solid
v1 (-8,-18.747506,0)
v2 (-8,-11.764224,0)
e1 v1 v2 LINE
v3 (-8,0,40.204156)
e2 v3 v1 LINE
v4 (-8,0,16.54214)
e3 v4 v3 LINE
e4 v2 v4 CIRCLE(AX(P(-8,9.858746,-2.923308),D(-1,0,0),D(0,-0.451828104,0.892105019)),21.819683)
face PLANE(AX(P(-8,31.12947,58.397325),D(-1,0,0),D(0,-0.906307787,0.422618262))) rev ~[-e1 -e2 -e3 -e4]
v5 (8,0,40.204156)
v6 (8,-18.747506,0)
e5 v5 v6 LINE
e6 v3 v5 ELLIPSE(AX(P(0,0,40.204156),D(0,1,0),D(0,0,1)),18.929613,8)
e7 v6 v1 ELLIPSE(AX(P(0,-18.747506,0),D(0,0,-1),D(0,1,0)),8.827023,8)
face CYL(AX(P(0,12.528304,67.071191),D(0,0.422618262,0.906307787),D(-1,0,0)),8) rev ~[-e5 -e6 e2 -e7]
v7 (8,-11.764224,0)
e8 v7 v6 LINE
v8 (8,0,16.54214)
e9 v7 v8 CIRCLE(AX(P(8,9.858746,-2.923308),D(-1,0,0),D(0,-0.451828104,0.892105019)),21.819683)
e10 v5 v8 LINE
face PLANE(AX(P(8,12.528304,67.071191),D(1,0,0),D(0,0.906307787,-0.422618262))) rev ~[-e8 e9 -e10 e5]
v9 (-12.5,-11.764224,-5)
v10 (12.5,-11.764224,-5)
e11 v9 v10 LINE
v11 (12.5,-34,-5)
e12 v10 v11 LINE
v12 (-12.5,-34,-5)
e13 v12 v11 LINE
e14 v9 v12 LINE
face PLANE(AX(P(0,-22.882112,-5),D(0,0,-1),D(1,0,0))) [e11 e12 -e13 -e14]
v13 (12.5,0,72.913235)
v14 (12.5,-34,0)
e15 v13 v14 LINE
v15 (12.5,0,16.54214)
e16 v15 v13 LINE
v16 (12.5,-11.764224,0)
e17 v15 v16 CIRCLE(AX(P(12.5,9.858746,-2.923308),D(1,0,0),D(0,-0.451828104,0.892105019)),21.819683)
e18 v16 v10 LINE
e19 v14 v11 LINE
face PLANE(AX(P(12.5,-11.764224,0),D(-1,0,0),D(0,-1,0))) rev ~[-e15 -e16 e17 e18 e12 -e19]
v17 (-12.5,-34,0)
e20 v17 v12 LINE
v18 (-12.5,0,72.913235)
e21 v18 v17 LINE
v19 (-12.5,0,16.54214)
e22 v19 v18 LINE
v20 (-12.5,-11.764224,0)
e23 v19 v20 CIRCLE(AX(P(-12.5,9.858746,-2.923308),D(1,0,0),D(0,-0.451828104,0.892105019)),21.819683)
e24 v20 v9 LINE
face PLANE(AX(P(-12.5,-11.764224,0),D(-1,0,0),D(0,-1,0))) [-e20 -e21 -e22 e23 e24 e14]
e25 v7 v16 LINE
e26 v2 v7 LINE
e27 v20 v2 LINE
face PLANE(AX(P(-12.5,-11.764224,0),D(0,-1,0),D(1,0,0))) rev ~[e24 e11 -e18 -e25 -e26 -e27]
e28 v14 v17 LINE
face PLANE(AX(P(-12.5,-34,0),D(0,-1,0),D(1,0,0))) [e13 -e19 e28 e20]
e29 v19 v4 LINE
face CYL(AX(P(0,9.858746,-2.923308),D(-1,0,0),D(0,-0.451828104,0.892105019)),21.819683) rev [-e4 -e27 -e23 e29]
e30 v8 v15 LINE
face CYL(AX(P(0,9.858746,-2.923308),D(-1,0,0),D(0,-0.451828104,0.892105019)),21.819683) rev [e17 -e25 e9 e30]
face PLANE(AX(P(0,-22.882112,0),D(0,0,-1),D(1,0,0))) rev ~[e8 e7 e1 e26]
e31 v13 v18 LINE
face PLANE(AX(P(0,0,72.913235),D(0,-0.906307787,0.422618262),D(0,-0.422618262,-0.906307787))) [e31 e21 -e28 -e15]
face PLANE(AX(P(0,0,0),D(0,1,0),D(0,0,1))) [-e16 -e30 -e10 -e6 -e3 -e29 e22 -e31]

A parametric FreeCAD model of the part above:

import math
import FreeCAD as App
import Part
import Sketcher
Q = App.Units.Quantity

doc = App.newDocument("Part")
body = doc.addObject("PartDesign::Body", "Body")

sketch1 = doc.addObject("Sketcher::SketchObject", "Sketch")
body.addObject(sketch1)
sketch1.AttachmentSupport = (doc.YZ_Plane, [""])
sketch1.MapMode = "FlatFace"
sketch1.addGeometry([
    Part.LineSegment(App.Vector(-34, 0, 0), App.Vector(0, 0, 0)),
    Part.LineSegment(App.Vector(0, 0, 0), App.Vector(0, 73, 0)),
    Part.LineSegment(App.Vector(0, 73, 0), App.Vector(-34, 0, 0)),
], False)
sketch1.addConstraint([
    Sketcher.Constraint("Coincident", 0, 2, 1, 1),
    Sketcher.Constraint("Coincident", 1, 2, 2, 1),
    Sketcher.Constraint("Coincident", 2, 2, 0, 1),
    Sketcher.Constraint("Horizontal", 0),
    Sketcher.Constraint("Vertical", 1),
    Sketcher.Constraint("Coincident", 0, 2, -1, 1),
    Sketcher.Constraint("DistanceX", 0, 1, 0, 2, Q("34 mm")),
    Sketcher.Constraint("Angle", 2, Q("-115 deg")),
])
pad1 = doc.addObject("PartDesign::Pad", "Pad")
body.addObject(pad1)
pad1.Profile = sketch1
pad1.Length = 25
pad1.Midplane = True

sketch2 = doc.addObject("Sketcher::SketchObject", "Sketch001")
body.addObject(sketch2)
sketch2.AttachmentSupport = (doc.YZ_Plane, [""])
sketch2.MapMode = "FlatFace"
sketch2.addGeometry([
    Part.ArcOfCircle(Part.Circle(App.Vector(10, -3, 0), App.Vector(0, 0, 1), 22), math.radians(117), math.radians(172)),
    Part.LineSegment(App.Vector(-12, 0, 0), App.Vector(0, 0, 0)),
    Part.LineSegment(App.Vector(0, 0, 0), App.Vector(0, 17, 0)),
], False)
sketch2.addConstraint([
    Sketcher.Constraint("Coincident", 0, 2, 1, 1),
    Sketcher.Constraint("Coincident", 1, 2, 2, 1),
    Sketcher.Constraint("Coincident", 2, 2, 0, 1),
    Sketcher.Constraint("Horizontal", 1),
    Sketcher.Constraint("Vertical", 2),
    Sketcher.Constraint("Coincident", 1, 2, -1, 1),
    Sketcher.Constraint("Radius", 0, Q("21.819683 mm")),
    Sketcher.Constraint("DistanceY", 2, 1, 2, 2, Q("16.54214 mm")),
    Sketcher.Constraint("DistanceX", 1, 1, 1, 2, Q("11.764224 mm")),
])
pocket1 = doc.addObject("PartDesign::Pocket", "Pocket")
body.addObject(pocket1)
pocket1.Profile = sketch2
pocket1.Type = "ThroughAll"
pocket1.Midplane = True

sketch3 = doc.addObject("Sketcher::SketchObject", "Sketch002")
body.addObject(sketch3)
sketch3.Placement = App.Placement(App.Vector(0, 27.927389, 59.89048), App.Rotation(App.Vector(1, 0, 0), App.Vector(0, 0.906307787, -0.422618262), App.Vector(0, 0.422618262, 0.906307787), "ZXY"))
sketch3.addGeometry([
    Part.LineSegment(App.Vector(-8, 4, 0), App.Vector(-8, -17, 0)),
    Part.ArcOfCircle(Part.Circle(App.Vector(0, -17, 0), App.Vector(0, 0, 1), 8), math.radians(180), math.radians(360)),
    Part.LineSegment(App.Vector(8, -17, 0), App.Vector(8, 4, 0)),
    Part.LineSegment(App.Vector(8, 4, 0), App.Vector(-8, 4, 0)),
], False)
sketch3.addConstraint([
    Sketcher.Constraint("Tangent", 0, 2, 1, 1),
    Sketcher.Constraint("Tangent", 1, 2, 2, 1),
    Sketcher.Constraint("Coincident", 2, 2, 3, 1),
    Sketcher.Constraint("Coincident", 3, 2, 0, 1),
    Sketcher.Constraint("Vertical", 0),
    Sketcher.Constraint("Vertical", 2),
    Sketcher.Constraint("Horizontal", 3),
    Sketcher.Constraint("PointOnObject", 1, 3, -2),
    Sketcher.Constraint("Radius", 1, Q("8 mm")),
    Sketcher.Constraint("DistanceY", 0, 2, 0, 1, Q("20.524116 mm")),
    Sketcher.Constraint("DistanceY", 1, 3, -1, 1, Q("16.99101 mm")),
])
pocket2 = doc.addObject("PartDesign::Pocket", "Pocket001")
body.addObject(pocket2)
pocket2.Profile = sketch3
pocket2.Length = 78.735332

sketch4 = doc.addObject("Sketcher::SketchObject", "Sketch003")
body.addObject(sketch4)
sketch4.AttachmentSupport = (doc.XY_Plane, [""])
sketch4.MapMode = "FlatFace"
sketch4.addGeometry([
    Part.LineSegment(App.Vector(-12, -34, 0), App.Vector(-12, -12, 0)),
    Part.LineSegment(App.Vector(-12, -12, 0), App.Vector(12, -12, 0)),
    Part.LineSegment(App.Vector(12, -12, 0), App.Vector(12, -34, 0)),
    Part.LineSegment(App.Vector(12, -34, 0), App.Vector(-12, -34, 0)),
], False)
sketch4.addConstraint([
    Sketcher.Constraint("Coincident", 0, 2, 1, 1),
    Sketcher.Constraint("Coincident", 1, 2, 2, 1),
    Sketcher.Constraint("Coincident", 2, 2, 3, 1),
    Sketcher.Constraint("Coincident", 3, 2, 0, 1),
    Sketcher.Constraint("Vertical", 0),
    Sketcher.Constraint("Horizontal", 1),
    Sketcher.Constraint("Vertical", 2),
    Sketcher.Constraint("Horizontal", 3),
    Sketcher.Constraint("DistanceX", 1, 1, 1, 2, Q("25 mm")),
    Sketcher.Constraint("DistanceY", 2, 2, -1, 1, Q("34 mm")),
    Sketcher.Constraint("DistanceX", 0, 2, -1, 1, Q("12.5 mm")),
    Sketcher.Constraint("DistanceY", 0, 1, 0, 2, Q("22.235776 mm")),
])
pad2 = doc.addObject("PartDesign::Pad", "Pad001")
body.addObject(pad2)
pad2.Profile = sketch4
pad2.Length = 5
pad2.Reversed = True

doc.recompute()
